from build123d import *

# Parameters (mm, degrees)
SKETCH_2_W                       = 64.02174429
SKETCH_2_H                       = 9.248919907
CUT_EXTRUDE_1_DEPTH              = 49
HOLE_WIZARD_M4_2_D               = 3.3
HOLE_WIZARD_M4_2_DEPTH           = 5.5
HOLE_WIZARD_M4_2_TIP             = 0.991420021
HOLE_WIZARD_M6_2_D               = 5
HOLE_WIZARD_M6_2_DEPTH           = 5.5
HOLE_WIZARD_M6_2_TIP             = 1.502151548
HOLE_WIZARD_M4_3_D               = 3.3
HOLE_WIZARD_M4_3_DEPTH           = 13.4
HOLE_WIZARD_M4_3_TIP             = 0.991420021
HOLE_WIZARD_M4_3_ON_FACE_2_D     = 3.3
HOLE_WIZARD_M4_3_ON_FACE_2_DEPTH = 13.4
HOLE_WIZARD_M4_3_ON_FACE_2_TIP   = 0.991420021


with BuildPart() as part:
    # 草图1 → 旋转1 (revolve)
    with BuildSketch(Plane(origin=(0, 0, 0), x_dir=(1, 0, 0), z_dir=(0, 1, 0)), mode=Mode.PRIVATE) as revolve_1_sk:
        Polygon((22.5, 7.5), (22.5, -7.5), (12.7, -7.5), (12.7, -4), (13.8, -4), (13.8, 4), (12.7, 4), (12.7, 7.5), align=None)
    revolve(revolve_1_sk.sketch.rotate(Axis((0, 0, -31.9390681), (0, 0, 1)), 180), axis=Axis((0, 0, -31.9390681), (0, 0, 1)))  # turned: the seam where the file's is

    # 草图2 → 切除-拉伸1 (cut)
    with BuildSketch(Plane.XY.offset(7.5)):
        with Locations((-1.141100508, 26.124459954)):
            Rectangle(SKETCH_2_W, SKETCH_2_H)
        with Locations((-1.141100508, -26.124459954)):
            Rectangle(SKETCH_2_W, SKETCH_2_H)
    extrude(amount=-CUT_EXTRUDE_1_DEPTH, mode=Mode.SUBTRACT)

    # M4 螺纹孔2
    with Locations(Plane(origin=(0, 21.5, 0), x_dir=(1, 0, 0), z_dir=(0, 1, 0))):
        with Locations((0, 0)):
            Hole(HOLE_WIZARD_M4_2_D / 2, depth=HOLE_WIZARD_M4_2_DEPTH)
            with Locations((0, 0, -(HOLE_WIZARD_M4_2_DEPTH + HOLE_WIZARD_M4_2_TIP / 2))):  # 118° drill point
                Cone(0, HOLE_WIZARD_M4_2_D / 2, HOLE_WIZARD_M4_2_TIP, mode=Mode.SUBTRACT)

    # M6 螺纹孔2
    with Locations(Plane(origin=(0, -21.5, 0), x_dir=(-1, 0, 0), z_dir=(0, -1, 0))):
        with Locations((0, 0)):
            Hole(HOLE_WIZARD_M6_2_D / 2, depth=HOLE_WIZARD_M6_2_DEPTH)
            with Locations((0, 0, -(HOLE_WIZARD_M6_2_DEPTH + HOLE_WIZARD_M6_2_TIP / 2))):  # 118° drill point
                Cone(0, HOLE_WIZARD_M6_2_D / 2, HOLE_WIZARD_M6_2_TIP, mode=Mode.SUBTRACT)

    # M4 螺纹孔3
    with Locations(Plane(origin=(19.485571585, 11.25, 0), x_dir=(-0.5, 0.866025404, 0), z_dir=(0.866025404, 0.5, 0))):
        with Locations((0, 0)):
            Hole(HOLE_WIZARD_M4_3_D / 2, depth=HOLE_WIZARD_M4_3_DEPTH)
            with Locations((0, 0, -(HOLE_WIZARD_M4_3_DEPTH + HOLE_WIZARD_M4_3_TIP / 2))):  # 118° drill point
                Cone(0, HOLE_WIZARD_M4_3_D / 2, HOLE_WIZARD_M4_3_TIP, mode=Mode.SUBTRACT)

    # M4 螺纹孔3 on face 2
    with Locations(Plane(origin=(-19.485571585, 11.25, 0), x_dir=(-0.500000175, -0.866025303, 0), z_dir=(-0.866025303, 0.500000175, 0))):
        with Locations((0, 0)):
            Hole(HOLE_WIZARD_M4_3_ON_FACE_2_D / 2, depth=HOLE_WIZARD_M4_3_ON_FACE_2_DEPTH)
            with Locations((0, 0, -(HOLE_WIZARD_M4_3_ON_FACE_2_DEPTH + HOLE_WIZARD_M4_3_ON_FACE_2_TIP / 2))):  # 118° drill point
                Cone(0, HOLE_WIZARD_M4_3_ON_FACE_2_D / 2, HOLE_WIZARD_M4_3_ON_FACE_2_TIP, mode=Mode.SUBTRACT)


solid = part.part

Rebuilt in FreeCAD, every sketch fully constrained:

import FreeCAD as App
import Part
import Sketcher

doc = App.newDocument("Part")
body = doc.addObject("PartDesign::Body", "Body")

# Sketch on XZ plane
sketch1 = body.newObject("Sketcher::SketchObject", "Sketch")
sketch1.AttachmentSupport = (doc.getObject("XZ_Plane"), [""])
sketch1.MapMode = "FlatFace"
sketch1.addGeometry(Part.LineSegment(App.Vector(22.5, 7.5, 0), App.Vector(22.5, -7.5, 0)), False)
sketch1.addGeometry(Part.LineSegment(App.Vector(22.5, -7.5, 0), App.Vector(12.7, -7.5, 0)), False)
sketch1.addGeometry(Part.LineSegment(App.Vector(12.7, -7.5, 0), App.Vector(12.7, -4, 0)), False)
sketch1.addGeometry(Part.LineSegment(App.Vector(12.7, -4, 0), App.Vector(13.8, -4, 0)), False)
sketch1.addGeometry(Part.LineSegment(App.Vector(13.8, -4, 0), App.Vector(13.8, 4, 0)), False)
sketch1.addGeometry(Part.LineSegment(App.Vector(13.8, 4, 0), App.Vector(12.7, 4, 0)), False)
sketch1.addGeometry(Part.LineSegment(App.Vector(12.7, 4, 0), App.Vector(12.7, 7.5, 0)), False)
sketch1.addGeometry(Part.LineSegment(App.Vector(12.7, 7.5, 0), App.Vector(22.5, 7.5, 0)), False)
sketch1.addConstraint(Sketcher.Constraint("Coincident", 0, 2, 1, 1))
sketch1.addConstraint(Sketcher.Constraint("Coincident", 1, 2, 2, 1))
sketch1.addConstraint(Sketcher.Constraint("Coincident", 2, 2, 3, 1))
sketch1.addConstraint(Sketcher.Constraint("Coincident", 3, 2, 4, 1))
sketch1.addConstraint(Sketcher.Constraint("Coincident", 4, 2, 5, 1))
sketch1.addConstraint(Sketcher.Constraint("Coincident", 5, 2, 6, 1))
sketch1.addConstraint(Sketcher.Constraint("Coincident", 6, 2, 7, 1))
sketch1.addConstraint(Sketcher.Constraint("Coincident", 7, 2, 0, 1))
sketch1.addConstraint(Sketcher.Constraint("Vertical", 0))
sketch1.addConstraint(Sketcher.Constraint("Horizontal", 1))
sketch1.addConstraint(Sketcher.Constraint("Vertical", 2))
sketch1.addConstraint(Sketcher.Constraint("Horizontal", 3))
sketch1.addConstraint(Sketcher.Constraint("Vertical", 4))
sketch1.addConstraint(Sketcher.Constraint("Horizontal", 5))
sketch1.addConstraint(Sketcher.Constraint("Vertical", 6))
sketch1.addConstraint(Sketcher.Constraint("Horizontal", 7))
sketch1.addConstraint(Sketcher.Constraint("Symmetric", 2, 2, 5, 2, -1))
sketch1.addConstraint(Sketcher.Constraint("Equal", 2, 6))
sketch1.addConstraint(Sketcher.Constraint("DistanceY", 0, 2, 0, 1, 15.0))
sketch1.addConstraint(Sketcher.Constraint("DistanceY", 4, 1, 4, 2, 8.0))
sketch1.addConstraint(Sketcher.Constraint("DistanceX", 1, 2, 1, 1, 9.8))
sketch1.addConstraint(Sketcher.Constraint("DistanceX", 3, 1, 3, 2, 1.1))
sketch1.addConstraint(Sketcher.Constraint("DistanceX", -1, 1, 0, 2, 22.5))
revolution = body.newObject("PartDesign::Revolution", "Revolution")
revolution.Profile = sketch1
revolution.ReferenceAxis = (sketch1, ["V_Axis"])
revolution.Angle = 360

# Sketch on XY plane
sketch2 = body.newObject("Sketcher::SketchObject", "Sketch001")
sketch2.AttachmentSupport = (doc.getObject("XY_Plane"), [""])
sketch2.MapMode = "FlatFace"
sketch2.AttachmentOffset = App.Placement(App.Vector(0, 0, 7.5), App.Rotation())
sketch2.addGeometry(Part.LineSegment(App.Vector(-33, 31, 0), App.Vector(-33, 22, 0)), False)
sketch2.addGeometry(Part.LineSegment(App.Vector(-33, 22, 0), App.Vector(31, 22, 0)), False)
sketch2.addGeometry(Part.LineSegment(App.Vector(31, 22, 0), App.Vector(31, 31, 0)), False)
sketch2.addGeometry(Part.LineSegment(App.Vector(31, 31, 0), App.Vector(-33, 31, 0)), False)
sketch2.addGeometry(Part.LineSegment(App.Vector(-33, -22, 0), App.Vector(-33, -31, 0)), False)
sketch2.addGeometry(Part.LineSegment(App.Vector(-33, -31, 0), App.Vector(31, -31, 0)), False)
sketch2.addGeometry(Part.LineSegment(App.Vector(31, -31, 0), App.Vector(31, -22, 0)), False)
sketch2.addGeometry(Part.LineSegment(App.Vector(31, -22, 0), App.Vector(-33, -22, 0)), False)
sketch2.addConstraint(Sketcher.Constraint("Coincident", 0, 2, 1, 1))
sketch2.addConstraint(Sketcher.Constraint("Coincident", 1, 2, 2, 1))
sketch2.addConstraint(Sketcher.Constraint("Coincident", 2, 2, 3, 1))
sketch2.addConstraint(Sketcher.Constraint("Coincident", 3, 2, 0, 1))
sketch2.addConstraint(Sketcher.Constraint("Coincident", 4, 2, 5, 1))
sketch2.addConstraint(Sketcher.Constraint("Coincident", 5, 2, 6, 1))
sketch2.addConstraint(Sketcher.Constraint("Coincident", 6, 2, 7, 1))
sketch2.addConstraint(Sketcher.Constraint("Coincident", 7, 2, 4, 1))
sketch2.addConstraint(Sketcher.Constraint("Vertical", 0))
sketch2.addConstraint(Sketcher.Constraint("Horizontal", 1))
sketch2.addConstraint(Sketcher.Constraint("Vertical", 2))
sketch2.addConstraint(Sketcher.Constraint("Horizontal", 3))
sketch2.addConstraint(Sketcher.Constraint("Vertical", 4))
sketch2.addConstraint(Sketcher.Constraint("Horizontal", 5))
sketch2.addConstraint(Sketcher.Constraint("Vertical", 6))
sketch2.addConstraint(Sketcher.Constraint("Horizontal", 7))
sketch2.addConstraint(Sketcher.Constraint("Symmetric", 3, 2, 4, 2, -1))
sketch2.addConstraint(Sketcher.Constraint("Symmetric", 1, 2, 6, 2, -1))
sketch2.addConstraint(Sketcher.Constraint("DistanceY", 6, 2, 1, 2, 43.0))
sketch2.addConstraint(Sketcher.Constraint("DistanceY", 0, 2, 0, 1, 9.24892))
sketch2.addConstraint(Sketcher.Constraint("DistanceX", 1, 1, 1, 2, 64.021744))
sketch2.addConstraint(Sketcher.Constraint("DistanceX", -1, 1, 1, 2, 30.869772))
pocket1 = body.newObject("PartDesign::Pocket", "Pocket")
pocket1.Profile = sketch2
pocket1.Length = 49

# Sketch on XZ plane
sketch3 = body.newObject("Sketcher::SketchObject", "Sketch002")
sketch3.AttachmentSupport = (doc.getObject("XZ_Plane"), [""])
sketch3.MapMode = "FlatFace"
sketch3.AttachmentOffset = App.Placement(App.Vector(0, 0, -21.5), App.Rotation())
sketch3.addGeometry(Part.Circle(App.Vector(0, 0, 0), App.Vector(0, 0, 1), 1.6), False)
sketch3.addConstraint(Sketcher.Constraint("Coincident", 0, 3, -1, 1))
sketch3.addConstraint(Sketcher.Constraint("Diameter", 0, 3.3))
doc.recompute()
hole = body.newObject("PartDesign::Hole", "Hole")
hole.Profile = sketch3
hole.ThreadType = "None"
hole.Diameter = 3.3
hole.DepthType = "Dimension"
hole.Depth = 5.5
hole.DrillPoint = "Angled"
hole.DrillPointAngle = 118
hole.Reversed = True

# Sketch on XZ plane
sketch4 = body.newObject("Sketcher::SketchObject", "Sketch003")
sketch4.AttachmentSupport = (doc.getObject("XZ_Plane"), [""])
sketch4.MapMode = "FlatFace"
sketch4.AttachmentOffset = App.Placement(App.Vector(0, 0, 21.5), App.Rotation())
sketch4.addGeometry(Part.Circle(App.Vector(0, 0, 0), App.Vector(0, 0, 1), 2.5), False)
sketch4.addConstraint(Sketcher.Constraint("Coincident", 0, 3, -1, 1))
sketch4.addConstraint(Sketcher.Constraint("Diameter", 0, 5.0))
doc.recompute()
hole2 = body.newObject("PartDesign::Hole", "Hole001")
hole2.Profile = sketch4
hole2.ThreadType = "None"
hole2.Diameter = 5
hole2.DepthType = "Dimension"
hole2.Depth = 5.5
hole2.DrillPoint = "Angled"
hole2.DrillPointAngle = 118

# Sketch on an angled plane
sketch5 = body.newObject("Sketcher::SketchObject", "Sketch004")
sketch5.Placement = App.Placement(App.Vector(19.485572, 11.25, 0), App.Rotation(App.Vector(-0.5, 0.866025404, 0), App.Vector(0, 0, 1), App.Vector(0.866025404, 0.5, 0), "ZXY"))
sketch5.addGeometry(Part.Circle(App.Vector(0, 0, 0), App.Vector(0, 0, 1), 1.6), False)
sketch5.addConstraint(Sketcher.Constraint("Coincident", 0, 3, -1, 1))
sketch5.addConstraint(Sketcher.Constraint("Diameter", 0, 3.3))
doc.recompute()
hole3 = body.newObject("PartDesign::Hole", "Hole002")
hole3.Profile = sketch5
hole3.ThreadType = "None"
hole3.Diameter = 3.3
hole3.DepthType = "Dimension"
hole3.Depth = 13.4
hole3.DrillPoint = "Angled"
hole3.DrillPointAngle = 118

# Sketch on an angled plane
sketch6 = body.newObject("Sketcher::SketchObject", "Sketch005")
sketch6.Placement = App.Placement(App.Vector(-19.485569, 11.250004, 0), App.Rotation(App.Vector(-0.500000175, -0.866025303, 0), App.Vector(0, 0, 1), App.Vector(-0.866025303, 0.500000175, 0), "ZXY"))
sketch6.addGeometry(Part.Circle(App.Vector(0, 0, 0), App.Vector(0, 0, 1), 1.6), False)
sketch6.addConstraint(Sketcher.Constraint("Coincident", 0, 3, -1, 1))
sketch6.addConstraint(Sketcher.Constraint("Diameter", 0, 3.3))
doc.recompute()
hole4 = body.newObject("PartDesign::Hole", "Hole003")
hole4.Profile = sketch6
hole4.ThreadType = "None"
hole4.Diameter = 3.3
hole4.DepthType = "Dimension"
hole4.Depth = 13.4
hole4.DrillPoint = "Angled"
hole4.DrillPointAngle = 118

doc.recompute()
